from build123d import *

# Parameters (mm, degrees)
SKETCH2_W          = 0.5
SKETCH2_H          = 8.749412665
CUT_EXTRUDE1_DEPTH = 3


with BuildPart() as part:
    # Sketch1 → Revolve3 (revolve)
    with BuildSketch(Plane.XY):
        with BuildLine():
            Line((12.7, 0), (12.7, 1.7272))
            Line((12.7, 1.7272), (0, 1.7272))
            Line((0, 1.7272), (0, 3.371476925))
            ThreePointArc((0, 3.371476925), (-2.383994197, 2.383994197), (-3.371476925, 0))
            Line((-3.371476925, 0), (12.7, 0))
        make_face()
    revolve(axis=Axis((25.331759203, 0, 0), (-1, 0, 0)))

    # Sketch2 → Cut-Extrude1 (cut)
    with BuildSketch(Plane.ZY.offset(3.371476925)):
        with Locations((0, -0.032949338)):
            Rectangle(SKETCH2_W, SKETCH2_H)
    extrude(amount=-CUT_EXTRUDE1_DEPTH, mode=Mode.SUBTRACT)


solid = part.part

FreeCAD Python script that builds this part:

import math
import FreeCAD as App
import Part
import Sketcher

V = App.Vector

doc = App.newDocument("Part")
body = doc.addObject("PartDesign::Body", "Body")

sketch1 = body.newObject("Sketcher::SketchObject", "Sketch")
sketch1.AttachmentSupport = (doc.getObject("XY_Plane"), [""])
sketch1.MapMode = "FlatFace"
sketch1.addGeometry([
    Part.LineSegment(V(12.7, 0, 0), V(12.7, 1.7, 0)),
    Part.LineSegment(V(12.7, 1.7, 0), V(0, 1.7, 0)),
    Part.LineSegment(V(0, 1.7, 0), V(0, 3.4, 0)),
    Part.ArcOfCircle(Part.Circle(V(0, 0, 0), V(0, 0, 1), 3.4), math.radians(90), math.radians(180)),
    Part.LineSegment(V(-3.4, 0, 0), V(12.7, 0, 0)),
], False)
sketch1.addConstraint([
    Sketcher.Constraint("Coincident", 0, 2, 1, 1),
    Sketcher.Constraint("Coincident", 1, 2, 2, 1),
    Sketcher.Constraint("Coincident", 2, 2, 3, 1),
    Sketcher.Constraint("Coincident", 3, 2, 4, 1),
    Sketcher.Constraint("Coincident", 4, 2, 0, 1),
    Sketcher.Constraint("Vertical", 0),
    Sketcher.Constraint("Horizontal", 1),
    Sketcher.Constraint("Vertical", 2),
    Sketcher.Constraint("Horizontal", 4),
    Sketcher.Constraint("Coincident", 3, 3, -1, 1),
    Sketcher.Constraint("PointOnObject", 1, 2, -2),
    Sketcher.Constraint("PointOnObject", 3, 2, -1),
    Sketcher.Constraint("DistanceX", 1, 2, 1, 1, 12.7),
    Sketcher.Constraint("DistanceY", 0, 1, 0, 2, 1.7272),
    Sketcher.Constraint("Radius", 3, 3.371477),
])
revolution = body.newObject("PartDesign::Revolution", "Revolution")
revolution.Profile = sketch1
revolution.ReferenceAxis = (sketch1, ["H_Axis"])
revolution.Angle = 360

sketch2 = body.newObject("Sketcher::SketchObject", "Sketch001")
sketch2.AttachmentSupport = (doc.getObject("YZ_Plane"), [""])
sketch2.MapMode = "FlatFace"
sketch2.AttachmentOffset = App.Placement(V(0, 0, -3.371477), App.Rotation())
sketch2.addGeometry([
    Part.LineSegment(V(4.3, -0.2, 0), V(-4.4, -0.2, 0)),
    Part.LineSegment(V(-4.4, -0.2, 0), V(-4.4, 0.2, 0)),
    Part.LineSegment(V(-4.4, 0.2, 0), V(4.3, 0.2, 0)),
    Part.LineSegment(V(4.3, 0.2, 0), V(4.3, -0.2, 0)),
], False)
sketch2.addConstraint([
    Sketcher.Constraint("Coincident", 0, 2, 1, 1),
    Sketcher.Constraint("Coincident", 1, 2, 2, 1),
    Sketcher.Constraint("Coincident", 2, 2, 3, 1),
    Sketcher.Constraint("Coincident", 3, 2, 0, 1),
    Sketcher.Constraint("Horizontal", 0),
    Sketcher.Constraint("Vertical", 1),
    Sketcher.Constraint("Horizontal", 2),
    Sketcher.Constraint("Vertical", 3),
    Sketcher.Constraint("DistanceY", 1, 1, 1, 2, 0.5),
    Sketcher.Constraint("DistanceY", 0, 2, -1, 1, 0.25),
    Sketcher.Constraint("DistanceX", 0, 2, 0, 1, 8.749413),
    Sketcher.Constraint("DistanceX", 0, 2, -1, 1, 4.407656),
])
pocket1 = body.newObject("PartDesign::Pocket", "Pocket")
pocket1.Profile = sketch2
pocket1.Length = 3
pocket1.Reversed = True

doc.recompute()
